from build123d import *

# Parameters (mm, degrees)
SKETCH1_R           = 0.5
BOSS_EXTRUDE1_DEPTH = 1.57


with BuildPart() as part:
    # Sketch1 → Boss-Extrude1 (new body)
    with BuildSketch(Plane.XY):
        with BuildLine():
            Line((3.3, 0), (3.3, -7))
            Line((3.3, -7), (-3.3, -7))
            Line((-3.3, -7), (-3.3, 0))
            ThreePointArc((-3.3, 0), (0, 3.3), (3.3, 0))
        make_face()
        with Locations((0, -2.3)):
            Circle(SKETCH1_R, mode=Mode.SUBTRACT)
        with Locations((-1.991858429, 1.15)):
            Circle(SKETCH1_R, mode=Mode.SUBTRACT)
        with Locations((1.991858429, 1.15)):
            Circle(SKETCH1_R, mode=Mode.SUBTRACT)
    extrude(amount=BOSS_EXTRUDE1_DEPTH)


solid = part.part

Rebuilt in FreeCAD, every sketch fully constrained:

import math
import FreeCAD as App
import Part
import Sketcher
from FreeCAD import Vector

doc = App.newDocument("Part")
params = doc.addObject("Spreadsheet::Sheet", "Params")
for row, (alias, value) in enumerate([
    ("sketch1_diameter", "1 mm"),
    ("sketch1_radius", "3.3 mm"),
    ("sketch1_height", "7 mm"),
    ("pad1_length", "1.57 mm"),
], start=1):
    params.set(f"A{row}", alias)
    params.set(f"B{row}", "=" + value)
    params.setAlias(f"B{row}", alias)

body = doc.addObject("PartDesign::Body", "Body")

# Sketch on XY plane
sketch1 = body.newObject("Sketcher::SketchObject", "Sketch")
sketch1.AttachmentSupport = (doc.getObject("XY_Plane"), [""])
sketch1.MapMode = "FlatFace"
sketch1.addGeometry([
    Part.LineSegment(Vector(3.3, -7, 0), Vector(3.3, 0, 0)),  # 0
    Part.ArcOfCircle(Part.Circle(Vector(0, 0, 0), Vector(0, 0, 1), 3.3), math.radians(0), math.radians(180)),  # 1
    Part.LineSegment(Vector(-3.3, 0, 0), Vector(-3.3, -7, 0)),  # 2
    Part.LineSegment(Vector(-3.3, -7, 0), Vector(3.3, -7, 0)),  # 3
    Part.Circle(Vector(0, -2.3, 0), Vector(0, 0, 1), 0.5),  # 4
    Part.Circle(Vector(2, 1.1, 0), Vector(0, 0, 1), 0.5),  # 5
    Part.Circle(Vector(-2, 1.1, 0), Vector(0, 0, 1), 0.5),  # 6
], False)
sketch1.addConstraint([
    Sketcher.Constraint("Tangent", 0, 2, 1, 1),
    Sketcher.Constraint("Tangent", 1, 2, 2, 1),
    Sketcher.Constraint("Coincident", 2, 2, 3, 1),
    Sketcher.Constraint("Coincident", 3, 2, 0, 1),
    Sketcher.Constraint("Vertical", 0),
    Sketcher.Constraint("Vertical", 2),
    Sketcher.Constraint("Horizontal", 3),
    Sketcher.Constraint("Coincident", 1, 3, -1, 1),
    Sketcher.Constraint("Equal", 4, 5),
    Sketcher.Constraint("Equal", 5, 6),
    Sketcher.Constraint("Symmetric", 5, 3, 6, 3, -2),
    Sketcher.Constraint("PointOnObject", 4, 3, -2),
    Sketcher.Constraint("Diameter", 4, 1.0),
    Sketcher.Constraint("Radius", 1, 3.3),
    Sketcher.Constraint("DistanceY", 0, 1, 0, 2, 7.0),
    Sketcher.Constraint("DistanceY", 4, 3, -1, 1, 2.3),
    Sketcher.Constraint("DistanceY", -1, 1, 5, 3, 1.15),
    Sketcher.Constraint("DistanceX", -1, 1, 5, 3, 1.991858),
])
sketch1.setExpression("Constraints[12]", "Params.sketch1_diameter")
sketch1.setExpression("Constraints[13]", "Params.sketch1_radius")
sketch1.setExpression("Constraints[14]", "Params.sketch1_height")
pad1 = body.newObject("PartDesign::Pad", "Pad")
pad1.Profile = sketch1
pad1.setExpression("Length", "Params.pad1_length")

doc.recompute()
